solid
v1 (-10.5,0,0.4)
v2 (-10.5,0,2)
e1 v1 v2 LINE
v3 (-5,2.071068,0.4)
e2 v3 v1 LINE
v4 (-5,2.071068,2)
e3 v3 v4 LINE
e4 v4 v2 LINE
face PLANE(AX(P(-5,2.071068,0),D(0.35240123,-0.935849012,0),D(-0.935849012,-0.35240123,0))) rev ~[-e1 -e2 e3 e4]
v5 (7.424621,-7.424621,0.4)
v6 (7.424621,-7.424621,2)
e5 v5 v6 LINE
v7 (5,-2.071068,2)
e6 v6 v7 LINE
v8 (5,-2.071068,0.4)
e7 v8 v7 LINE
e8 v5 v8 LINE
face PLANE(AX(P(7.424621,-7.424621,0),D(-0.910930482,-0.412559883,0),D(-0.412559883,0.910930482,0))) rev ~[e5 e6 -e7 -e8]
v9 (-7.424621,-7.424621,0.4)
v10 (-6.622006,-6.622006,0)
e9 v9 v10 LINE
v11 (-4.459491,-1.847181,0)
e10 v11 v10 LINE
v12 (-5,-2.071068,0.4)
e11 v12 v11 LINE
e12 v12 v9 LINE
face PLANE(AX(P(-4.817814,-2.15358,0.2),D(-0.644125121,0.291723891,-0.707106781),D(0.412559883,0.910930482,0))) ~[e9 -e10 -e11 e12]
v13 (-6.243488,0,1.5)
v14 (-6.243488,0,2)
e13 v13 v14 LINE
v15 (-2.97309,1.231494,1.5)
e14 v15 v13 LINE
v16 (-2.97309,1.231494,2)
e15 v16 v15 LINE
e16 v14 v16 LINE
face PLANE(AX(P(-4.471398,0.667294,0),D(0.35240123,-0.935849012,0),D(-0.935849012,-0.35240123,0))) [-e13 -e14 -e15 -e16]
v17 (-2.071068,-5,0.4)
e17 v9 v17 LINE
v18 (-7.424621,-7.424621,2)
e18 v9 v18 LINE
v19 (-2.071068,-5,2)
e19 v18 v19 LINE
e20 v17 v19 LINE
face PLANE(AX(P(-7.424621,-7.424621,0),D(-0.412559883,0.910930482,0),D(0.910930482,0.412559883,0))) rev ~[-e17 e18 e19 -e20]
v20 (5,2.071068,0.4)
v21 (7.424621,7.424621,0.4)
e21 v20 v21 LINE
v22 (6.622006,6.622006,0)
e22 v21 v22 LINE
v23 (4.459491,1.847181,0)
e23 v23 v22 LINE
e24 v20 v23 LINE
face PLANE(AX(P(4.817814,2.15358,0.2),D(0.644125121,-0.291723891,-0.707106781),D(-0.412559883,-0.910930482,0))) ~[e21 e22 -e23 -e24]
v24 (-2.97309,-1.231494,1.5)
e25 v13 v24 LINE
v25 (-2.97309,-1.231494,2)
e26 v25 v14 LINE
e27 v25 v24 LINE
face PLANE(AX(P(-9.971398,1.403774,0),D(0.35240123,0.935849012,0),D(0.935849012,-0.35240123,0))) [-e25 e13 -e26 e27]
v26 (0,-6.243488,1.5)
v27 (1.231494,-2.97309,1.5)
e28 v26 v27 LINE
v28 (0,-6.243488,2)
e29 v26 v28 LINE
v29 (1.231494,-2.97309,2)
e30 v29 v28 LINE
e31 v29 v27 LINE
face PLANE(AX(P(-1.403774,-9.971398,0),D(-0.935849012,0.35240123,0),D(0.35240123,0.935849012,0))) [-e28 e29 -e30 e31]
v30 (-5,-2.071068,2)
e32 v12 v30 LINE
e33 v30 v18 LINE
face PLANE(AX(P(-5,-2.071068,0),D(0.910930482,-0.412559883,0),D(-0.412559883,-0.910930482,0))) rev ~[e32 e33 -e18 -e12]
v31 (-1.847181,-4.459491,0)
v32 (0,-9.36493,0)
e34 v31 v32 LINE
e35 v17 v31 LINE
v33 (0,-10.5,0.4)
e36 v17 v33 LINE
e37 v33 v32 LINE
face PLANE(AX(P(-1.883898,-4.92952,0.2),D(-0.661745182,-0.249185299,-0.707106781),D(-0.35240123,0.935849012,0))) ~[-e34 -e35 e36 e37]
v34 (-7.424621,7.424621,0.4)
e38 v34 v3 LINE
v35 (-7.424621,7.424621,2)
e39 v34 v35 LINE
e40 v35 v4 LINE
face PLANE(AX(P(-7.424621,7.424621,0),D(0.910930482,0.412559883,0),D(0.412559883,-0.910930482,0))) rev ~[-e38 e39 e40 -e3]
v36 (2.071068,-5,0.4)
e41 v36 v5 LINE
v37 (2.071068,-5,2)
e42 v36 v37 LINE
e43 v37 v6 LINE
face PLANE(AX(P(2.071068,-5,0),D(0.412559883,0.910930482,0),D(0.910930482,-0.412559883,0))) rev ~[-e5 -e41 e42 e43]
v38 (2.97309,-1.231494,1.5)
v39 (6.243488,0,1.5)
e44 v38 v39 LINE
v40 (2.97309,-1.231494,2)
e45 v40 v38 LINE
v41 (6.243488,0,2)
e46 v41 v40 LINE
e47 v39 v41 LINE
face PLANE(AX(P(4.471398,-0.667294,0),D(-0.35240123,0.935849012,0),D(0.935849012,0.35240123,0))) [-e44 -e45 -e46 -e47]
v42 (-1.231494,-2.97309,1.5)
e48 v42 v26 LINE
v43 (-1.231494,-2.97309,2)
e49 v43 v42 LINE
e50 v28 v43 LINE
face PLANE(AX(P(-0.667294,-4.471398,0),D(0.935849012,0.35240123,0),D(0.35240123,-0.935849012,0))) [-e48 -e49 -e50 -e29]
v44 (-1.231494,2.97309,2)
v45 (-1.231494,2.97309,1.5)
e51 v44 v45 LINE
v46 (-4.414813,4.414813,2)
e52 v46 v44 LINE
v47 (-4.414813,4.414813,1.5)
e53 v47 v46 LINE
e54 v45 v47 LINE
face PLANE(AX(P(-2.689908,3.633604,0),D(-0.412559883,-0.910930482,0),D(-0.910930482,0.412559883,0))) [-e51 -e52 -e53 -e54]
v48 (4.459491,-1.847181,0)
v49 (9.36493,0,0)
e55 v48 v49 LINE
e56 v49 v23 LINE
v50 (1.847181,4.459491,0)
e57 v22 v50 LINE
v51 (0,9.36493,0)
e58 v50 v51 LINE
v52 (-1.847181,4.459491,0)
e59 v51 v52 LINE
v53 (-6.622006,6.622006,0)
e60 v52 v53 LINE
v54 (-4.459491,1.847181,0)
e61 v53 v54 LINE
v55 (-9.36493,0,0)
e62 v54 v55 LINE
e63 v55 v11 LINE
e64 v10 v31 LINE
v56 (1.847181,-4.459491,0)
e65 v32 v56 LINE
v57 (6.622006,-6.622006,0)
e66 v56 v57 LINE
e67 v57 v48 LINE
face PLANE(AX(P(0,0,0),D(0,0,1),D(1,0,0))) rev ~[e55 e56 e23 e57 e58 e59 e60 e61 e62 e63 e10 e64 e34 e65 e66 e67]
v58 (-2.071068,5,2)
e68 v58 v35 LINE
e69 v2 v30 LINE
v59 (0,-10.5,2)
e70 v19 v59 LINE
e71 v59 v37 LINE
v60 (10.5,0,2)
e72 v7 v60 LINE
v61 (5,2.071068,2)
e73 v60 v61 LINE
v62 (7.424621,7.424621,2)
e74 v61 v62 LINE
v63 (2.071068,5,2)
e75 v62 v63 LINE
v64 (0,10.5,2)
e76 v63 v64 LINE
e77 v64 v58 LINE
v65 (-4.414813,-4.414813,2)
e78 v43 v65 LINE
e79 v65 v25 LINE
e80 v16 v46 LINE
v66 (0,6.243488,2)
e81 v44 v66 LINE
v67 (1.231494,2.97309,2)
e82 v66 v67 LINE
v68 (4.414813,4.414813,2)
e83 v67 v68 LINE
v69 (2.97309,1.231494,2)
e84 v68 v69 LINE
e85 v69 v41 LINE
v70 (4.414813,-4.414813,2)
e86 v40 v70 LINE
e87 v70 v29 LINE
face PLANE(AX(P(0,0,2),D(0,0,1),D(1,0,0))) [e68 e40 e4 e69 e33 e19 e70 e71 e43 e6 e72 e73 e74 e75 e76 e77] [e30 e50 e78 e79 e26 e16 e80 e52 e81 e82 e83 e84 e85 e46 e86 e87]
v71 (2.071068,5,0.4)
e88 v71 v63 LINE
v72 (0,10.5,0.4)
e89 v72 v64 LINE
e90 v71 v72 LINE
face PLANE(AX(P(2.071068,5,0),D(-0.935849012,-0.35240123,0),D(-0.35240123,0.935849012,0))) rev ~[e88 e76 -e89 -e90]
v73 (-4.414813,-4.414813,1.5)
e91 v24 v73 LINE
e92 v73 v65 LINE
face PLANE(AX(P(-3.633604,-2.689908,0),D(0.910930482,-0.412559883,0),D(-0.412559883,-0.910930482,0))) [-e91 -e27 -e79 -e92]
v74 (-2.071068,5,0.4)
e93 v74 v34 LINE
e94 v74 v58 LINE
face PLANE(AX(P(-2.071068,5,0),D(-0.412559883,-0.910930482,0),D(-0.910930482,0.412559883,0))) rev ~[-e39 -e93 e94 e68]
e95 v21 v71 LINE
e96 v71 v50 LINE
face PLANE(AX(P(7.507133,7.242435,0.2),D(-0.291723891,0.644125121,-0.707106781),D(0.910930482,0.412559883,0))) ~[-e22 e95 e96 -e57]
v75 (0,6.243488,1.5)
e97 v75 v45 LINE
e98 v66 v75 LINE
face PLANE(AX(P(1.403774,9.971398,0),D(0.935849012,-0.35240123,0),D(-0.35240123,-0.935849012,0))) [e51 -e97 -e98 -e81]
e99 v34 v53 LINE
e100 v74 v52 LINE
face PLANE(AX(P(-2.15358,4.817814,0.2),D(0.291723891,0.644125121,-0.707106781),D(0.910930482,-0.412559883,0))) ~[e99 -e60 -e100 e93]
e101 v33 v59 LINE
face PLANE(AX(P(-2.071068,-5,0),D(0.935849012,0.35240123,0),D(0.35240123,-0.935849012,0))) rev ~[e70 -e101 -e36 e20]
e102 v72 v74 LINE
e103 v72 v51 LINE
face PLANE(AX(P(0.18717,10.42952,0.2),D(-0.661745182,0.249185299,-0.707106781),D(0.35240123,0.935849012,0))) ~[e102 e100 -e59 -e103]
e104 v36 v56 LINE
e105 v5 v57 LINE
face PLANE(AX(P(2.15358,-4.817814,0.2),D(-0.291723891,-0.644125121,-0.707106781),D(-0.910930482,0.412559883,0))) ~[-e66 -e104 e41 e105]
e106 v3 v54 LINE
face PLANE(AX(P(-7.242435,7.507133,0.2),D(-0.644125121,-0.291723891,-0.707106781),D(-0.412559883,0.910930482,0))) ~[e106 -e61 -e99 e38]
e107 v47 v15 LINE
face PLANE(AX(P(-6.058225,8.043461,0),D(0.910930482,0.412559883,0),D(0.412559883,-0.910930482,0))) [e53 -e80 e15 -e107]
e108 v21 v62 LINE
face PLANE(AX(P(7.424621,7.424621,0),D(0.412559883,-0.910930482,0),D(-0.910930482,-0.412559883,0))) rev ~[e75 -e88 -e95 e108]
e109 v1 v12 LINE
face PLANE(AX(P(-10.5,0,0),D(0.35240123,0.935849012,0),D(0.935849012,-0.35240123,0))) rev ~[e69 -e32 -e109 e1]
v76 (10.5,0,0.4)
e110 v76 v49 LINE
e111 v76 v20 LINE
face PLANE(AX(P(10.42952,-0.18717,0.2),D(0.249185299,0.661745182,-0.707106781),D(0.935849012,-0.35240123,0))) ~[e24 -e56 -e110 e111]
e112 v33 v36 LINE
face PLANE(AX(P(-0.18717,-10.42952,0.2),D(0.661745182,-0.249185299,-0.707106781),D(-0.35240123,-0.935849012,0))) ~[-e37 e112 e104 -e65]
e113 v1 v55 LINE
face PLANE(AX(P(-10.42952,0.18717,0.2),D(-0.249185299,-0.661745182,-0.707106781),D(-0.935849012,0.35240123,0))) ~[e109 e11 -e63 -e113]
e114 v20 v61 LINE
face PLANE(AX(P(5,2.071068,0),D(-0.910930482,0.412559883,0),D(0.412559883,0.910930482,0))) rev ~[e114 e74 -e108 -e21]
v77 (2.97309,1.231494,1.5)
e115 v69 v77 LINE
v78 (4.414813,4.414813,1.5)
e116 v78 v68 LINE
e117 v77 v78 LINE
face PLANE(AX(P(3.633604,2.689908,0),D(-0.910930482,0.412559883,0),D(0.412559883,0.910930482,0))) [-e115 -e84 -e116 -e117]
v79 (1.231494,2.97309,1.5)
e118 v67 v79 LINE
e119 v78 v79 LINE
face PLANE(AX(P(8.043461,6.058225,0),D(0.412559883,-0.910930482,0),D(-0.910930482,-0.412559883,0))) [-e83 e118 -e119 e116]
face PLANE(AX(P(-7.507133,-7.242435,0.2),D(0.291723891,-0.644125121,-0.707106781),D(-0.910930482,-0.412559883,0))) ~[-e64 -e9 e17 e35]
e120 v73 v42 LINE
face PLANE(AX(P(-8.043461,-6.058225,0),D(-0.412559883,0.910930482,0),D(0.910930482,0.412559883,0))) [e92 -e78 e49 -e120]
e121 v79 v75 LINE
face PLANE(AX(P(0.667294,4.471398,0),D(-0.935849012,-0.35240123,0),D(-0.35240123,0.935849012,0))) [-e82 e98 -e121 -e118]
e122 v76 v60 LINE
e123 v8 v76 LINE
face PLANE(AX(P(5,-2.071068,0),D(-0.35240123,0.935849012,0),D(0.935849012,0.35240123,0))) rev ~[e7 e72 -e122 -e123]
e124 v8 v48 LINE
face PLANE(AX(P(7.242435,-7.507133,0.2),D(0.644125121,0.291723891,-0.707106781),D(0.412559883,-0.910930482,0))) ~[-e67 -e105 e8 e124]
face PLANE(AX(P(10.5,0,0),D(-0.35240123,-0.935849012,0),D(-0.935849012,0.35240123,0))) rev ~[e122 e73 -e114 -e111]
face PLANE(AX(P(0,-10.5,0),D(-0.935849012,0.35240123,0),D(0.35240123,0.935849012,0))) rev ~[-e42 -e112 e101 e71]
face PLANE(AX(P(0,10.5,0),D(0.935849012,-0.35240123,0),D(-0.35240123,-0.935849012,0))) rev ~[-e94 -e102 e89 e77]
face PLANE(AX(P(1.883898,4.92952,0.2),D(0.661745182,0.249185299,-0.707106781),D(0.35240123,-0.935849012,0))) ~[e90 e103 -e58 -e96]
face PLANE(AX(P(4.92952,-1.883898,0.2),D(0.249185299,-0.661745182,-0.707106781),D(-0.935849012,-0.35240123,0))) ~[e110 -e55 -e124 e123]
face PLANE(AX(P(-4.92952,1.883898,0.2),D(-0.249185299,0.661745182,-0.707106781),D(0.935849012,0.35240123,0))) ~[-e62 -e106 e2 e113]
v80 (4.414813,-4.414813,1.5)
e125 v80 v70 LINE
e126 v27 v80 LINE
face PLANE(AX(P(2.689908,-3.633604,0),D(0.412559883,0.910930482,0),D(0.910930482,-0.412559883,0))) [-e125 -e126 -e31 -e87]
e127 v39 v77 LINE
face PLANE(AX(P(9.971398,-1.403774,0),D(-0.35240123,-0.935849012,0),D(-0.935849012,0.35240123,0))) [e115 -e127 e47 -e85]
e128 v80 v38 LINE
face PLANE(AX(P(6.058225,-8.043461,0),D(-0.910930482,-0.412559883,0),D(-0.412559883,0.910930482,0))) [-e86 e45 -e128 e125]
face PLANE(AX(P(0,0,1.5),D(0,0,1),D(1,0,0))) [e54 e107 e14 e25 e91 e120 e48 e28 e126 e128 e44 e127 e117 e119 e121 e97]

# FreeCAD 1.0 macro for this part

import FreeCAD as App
import Part
import Sketcher
Q = App.Units.Quantity


def edges_at(feature, points):
    """Names of the edges that pass closest to the given points."""
    edges = feature.Shape.Edges
    near = lambda p: min(range(len(edges)), key=lambda i: edges[i].distToShape(Part.Vertex(*p))[0])
    return sorted({f"Edge{near(p) + 1}" for p in points})


def faces_at(feature, points):
    """Names of the faces that lie closest to the given points."""
    faces = feature.Shape.Faces
    near = lambda p: min(range(len(faces)), key=lambda i: faces[i].distToShape(Part.Vertex(*p))[0])
    return sorted({f"Face{near(p) + 1}" for p in points})

doc = App.newDocument("Part")
body = doc.addObject("PartDesign::Body", "Body")

# Sketch on XY plane
sketch1 = doc.addObject("Sketcher::SketchObject", "Sketch")
body.addObject(sketch1)
sketch1.AttachmentSupport = (doc.XY_Plane, [""])
sketch1.MapMode = "FlatFace"
sketch1.addGeometry([
    Part.LineSegment(App.Vector(0, 10.5, 0), App.Vector(-2.071068, 5, 0)),  # 0
    Part.LineSegment(App.Vector(-2.071068, 5, 0), App.Vector(-7.424621, 7.424621, 0)),  # 1
    Part.LineSegment(App.Vector(-7.424621, 7.424621, 0), App.Vector(-5, 2.071068, 0)),  # 2
    Part.LineSegment(App.Vector(-5, 2.071068, 0), App.Vector(-10.5, 0, 0)),  # 3
    Part.LineSegment(App.Vector(-10.5, 0, 0), App.Vector(-5, -2.071068, 0)),  # 4
    Part.LineSegment(App.Vector(-5, -2.071068, 0), App.Vector(-7.424621, -7.424621, 0)),  # 5
    Part.LineSegment(App.Vector(-7.424621, -7.424621, 0), App.Vector(-2.071068, -5, 0)),  # 6
    Part.LineSegment(App.Vector(-2.071068, -5, 0), App.Vector(0, -10.5, 0)),  # 7
    Part.LineSegment(App.Vector(0, -10.5, 0), App.Vector(2.071068, -5, 0)),  # 8
    Part.LineSegment(App.Vector(2.071068, -5, 0), App.Vector(7.424621, -7.424621, 0)),  # 9
    Part.LineSegment(App.Vector(7.424621, -7.424621, 0), App.Vector(5, -2.071068, 0)),  # 10
    Part.LineSegment(App.Vector(5, -2.071068, 0), App.Vector(10.5, 0, 0)),  # 11
    Part.LineSegment(App.Vector(10.5, 0, 0), App.Vector(5, 2.071068, 0)),  # 12
    Part.LineSegment(App.Vector(5, 2.071068, 0), App.Vector(7.424621, 7.424621, 0)),  # 13
    Part.LineSegment(App.Vector(7.424621, 7.424621, 0), App.Vector(2.071068, 5, 0)),  # 14
    Part.LineSegment(App.Vector(2.071068, 5, 0), App.Vector(0, 10.5, 0)),  # 15
], False)
sketch1.addConstraint([
    Sketcher.Constraint("Coincident", 0, 2, 1, 1),
    Sketcher.Constraint("Coincident", 1, 2, 2, 1),
    Sketcher.Constraint("Coincident", 2, 2, 3, 1),
    Sketcher.Constraint("Coincident", 3, 2, 4, 1),
    Sketcher.Constraint("Coincident", 4, 2, 5, 1),
    Sketcher.Constraint("Coincident", 5, 2, 6, 1),
    Sketcher.Constraint("Coincident", 6, 2, 7, 1),
    Sketcher.Constraint("Coincident", 7, 2, 8, 1),
    Sketcher.Constraint("Coincident", 8, 2, 9, 1),
    Sketcher.Constraint("Coincident", 9, 2, 10, 1),
    Sketcher.Constraint("Coincident", 10, 2, 11, 1),
    Sketcher.Constraint("Coincident", 11, 2, 12, 1),
    Sketcher.Constraint("Coincident", 12, 2, 13, 1),
    Sketcher.Constraint("Coincident", 13, 2, 14, 1),
    Sketcher.Constraint("Coincident", 14, 2, 15, 1),
    Sketcher.Constraint("Coincident", 15, 2, 0, 1),
    Sketcher.Constraint("Symmetric", 0, 2, 8, 2, -1, 1),
    Sketcher.Constraint("Symmetric", 1, 2, 9, 2, -1, 1),
    Sketcher.Constraint("Symmetric", 2, 2, 10, 2, -1, 1),
    Sketcher.Constraint("Symmetric", 3, 2, 11, 2, -1, 1),
    Sketcher.Constraint("Symmetric", 4, 2, 12, 2, -1, 1),
    Sketcher.Constraint("Symmetric", 5, 2, 13, 2, -1, 1),
    Sketcher.Constraint("Symmetric", 6, 2, 14, 2, -1, 1),
    Sketcher.Constraint("Symmetric", 7, 2, 15, 2, -1, 1),
    Sketcher.Constraint("Symmetric", 6, 2, 8, 2, -2),
    Sketcher.Constraint("Symmetric", 5, 2, 9, 2, -2),
    Sketcher.Constraint("Symmetric", 4, 2, 10, 2, -2),
    Sketcher.Constraint("PointOnObject", 3, 2, -1),
    Sketcher.Constraint("PointOnObject", 7, 2, -2),
    Sketcher.Constraint("Perpendicular", 0, 4),
    Sketcher.Constraint("Perpendicular", 1, 5),
    Sketcher.Constraint("Equal", 0, 1),
    Sketcher.Constraint("Equal", 1, 2),
    Sketcher.Constraint("Equal", 2, 3),
    Sketcher.Constraint("DistanceY", -1, 1, 0, 2, Q("5 mm")),
    Sketcher.Constraint("DistanceX", 3, 2, -1, 1, Q("10.5 mm")),
    Sketcher.Constraint("DistanceX", 1, 2, -1, 1, Q("7.424621 mm")),
])
pad1 = doc.addObject("PartDesign::Pad", "Pad")
body.addObject(pad1)
pad1.Profile = sketch1
pad1.Length = 2
doc.recompute()

thickness = doc.addObject("PartDesign::Thickness", "Thickness")
body.addObject(thickness)
thickness.Base = (pad1, faces_at(pad1, [(0, 0, 2)]))
thickness.Value = 1.5
thickness.Reversed = True
thickness.Join = "Intersection"
doc.recompute()

chamfer = doc.addObject("PartDesign::Chamfer", "Chamfer")
body.addObject(chamfer)
chamfer.Base = (thickness, edges_at(thickness, [
    (6.212, -4.748, 0),
    (7.75, -1.036, 0),
    (7.75, 1.036, 0),
    (6.212, 4.748, 0),
    (4.748, 6.212, 0),
    (1.036, 7.75, 0),
    (-1.036, 7.75, 0),
    (-4.748, 6.212, 0),
    (-6.212, 4.748, 0),
    (-7.75, 1.036, 0),
    (-7.75, -1.036, 0),
    (-6.212, -4.748, 0),
    (-4.748, -6.212, 0),
    (-1.036, -7.75, 0),
    (1.036, -7.75, 0),
    (4.748, -6.212, 0),
]))
chamfer.Size = 0.4

doc.recompute()
